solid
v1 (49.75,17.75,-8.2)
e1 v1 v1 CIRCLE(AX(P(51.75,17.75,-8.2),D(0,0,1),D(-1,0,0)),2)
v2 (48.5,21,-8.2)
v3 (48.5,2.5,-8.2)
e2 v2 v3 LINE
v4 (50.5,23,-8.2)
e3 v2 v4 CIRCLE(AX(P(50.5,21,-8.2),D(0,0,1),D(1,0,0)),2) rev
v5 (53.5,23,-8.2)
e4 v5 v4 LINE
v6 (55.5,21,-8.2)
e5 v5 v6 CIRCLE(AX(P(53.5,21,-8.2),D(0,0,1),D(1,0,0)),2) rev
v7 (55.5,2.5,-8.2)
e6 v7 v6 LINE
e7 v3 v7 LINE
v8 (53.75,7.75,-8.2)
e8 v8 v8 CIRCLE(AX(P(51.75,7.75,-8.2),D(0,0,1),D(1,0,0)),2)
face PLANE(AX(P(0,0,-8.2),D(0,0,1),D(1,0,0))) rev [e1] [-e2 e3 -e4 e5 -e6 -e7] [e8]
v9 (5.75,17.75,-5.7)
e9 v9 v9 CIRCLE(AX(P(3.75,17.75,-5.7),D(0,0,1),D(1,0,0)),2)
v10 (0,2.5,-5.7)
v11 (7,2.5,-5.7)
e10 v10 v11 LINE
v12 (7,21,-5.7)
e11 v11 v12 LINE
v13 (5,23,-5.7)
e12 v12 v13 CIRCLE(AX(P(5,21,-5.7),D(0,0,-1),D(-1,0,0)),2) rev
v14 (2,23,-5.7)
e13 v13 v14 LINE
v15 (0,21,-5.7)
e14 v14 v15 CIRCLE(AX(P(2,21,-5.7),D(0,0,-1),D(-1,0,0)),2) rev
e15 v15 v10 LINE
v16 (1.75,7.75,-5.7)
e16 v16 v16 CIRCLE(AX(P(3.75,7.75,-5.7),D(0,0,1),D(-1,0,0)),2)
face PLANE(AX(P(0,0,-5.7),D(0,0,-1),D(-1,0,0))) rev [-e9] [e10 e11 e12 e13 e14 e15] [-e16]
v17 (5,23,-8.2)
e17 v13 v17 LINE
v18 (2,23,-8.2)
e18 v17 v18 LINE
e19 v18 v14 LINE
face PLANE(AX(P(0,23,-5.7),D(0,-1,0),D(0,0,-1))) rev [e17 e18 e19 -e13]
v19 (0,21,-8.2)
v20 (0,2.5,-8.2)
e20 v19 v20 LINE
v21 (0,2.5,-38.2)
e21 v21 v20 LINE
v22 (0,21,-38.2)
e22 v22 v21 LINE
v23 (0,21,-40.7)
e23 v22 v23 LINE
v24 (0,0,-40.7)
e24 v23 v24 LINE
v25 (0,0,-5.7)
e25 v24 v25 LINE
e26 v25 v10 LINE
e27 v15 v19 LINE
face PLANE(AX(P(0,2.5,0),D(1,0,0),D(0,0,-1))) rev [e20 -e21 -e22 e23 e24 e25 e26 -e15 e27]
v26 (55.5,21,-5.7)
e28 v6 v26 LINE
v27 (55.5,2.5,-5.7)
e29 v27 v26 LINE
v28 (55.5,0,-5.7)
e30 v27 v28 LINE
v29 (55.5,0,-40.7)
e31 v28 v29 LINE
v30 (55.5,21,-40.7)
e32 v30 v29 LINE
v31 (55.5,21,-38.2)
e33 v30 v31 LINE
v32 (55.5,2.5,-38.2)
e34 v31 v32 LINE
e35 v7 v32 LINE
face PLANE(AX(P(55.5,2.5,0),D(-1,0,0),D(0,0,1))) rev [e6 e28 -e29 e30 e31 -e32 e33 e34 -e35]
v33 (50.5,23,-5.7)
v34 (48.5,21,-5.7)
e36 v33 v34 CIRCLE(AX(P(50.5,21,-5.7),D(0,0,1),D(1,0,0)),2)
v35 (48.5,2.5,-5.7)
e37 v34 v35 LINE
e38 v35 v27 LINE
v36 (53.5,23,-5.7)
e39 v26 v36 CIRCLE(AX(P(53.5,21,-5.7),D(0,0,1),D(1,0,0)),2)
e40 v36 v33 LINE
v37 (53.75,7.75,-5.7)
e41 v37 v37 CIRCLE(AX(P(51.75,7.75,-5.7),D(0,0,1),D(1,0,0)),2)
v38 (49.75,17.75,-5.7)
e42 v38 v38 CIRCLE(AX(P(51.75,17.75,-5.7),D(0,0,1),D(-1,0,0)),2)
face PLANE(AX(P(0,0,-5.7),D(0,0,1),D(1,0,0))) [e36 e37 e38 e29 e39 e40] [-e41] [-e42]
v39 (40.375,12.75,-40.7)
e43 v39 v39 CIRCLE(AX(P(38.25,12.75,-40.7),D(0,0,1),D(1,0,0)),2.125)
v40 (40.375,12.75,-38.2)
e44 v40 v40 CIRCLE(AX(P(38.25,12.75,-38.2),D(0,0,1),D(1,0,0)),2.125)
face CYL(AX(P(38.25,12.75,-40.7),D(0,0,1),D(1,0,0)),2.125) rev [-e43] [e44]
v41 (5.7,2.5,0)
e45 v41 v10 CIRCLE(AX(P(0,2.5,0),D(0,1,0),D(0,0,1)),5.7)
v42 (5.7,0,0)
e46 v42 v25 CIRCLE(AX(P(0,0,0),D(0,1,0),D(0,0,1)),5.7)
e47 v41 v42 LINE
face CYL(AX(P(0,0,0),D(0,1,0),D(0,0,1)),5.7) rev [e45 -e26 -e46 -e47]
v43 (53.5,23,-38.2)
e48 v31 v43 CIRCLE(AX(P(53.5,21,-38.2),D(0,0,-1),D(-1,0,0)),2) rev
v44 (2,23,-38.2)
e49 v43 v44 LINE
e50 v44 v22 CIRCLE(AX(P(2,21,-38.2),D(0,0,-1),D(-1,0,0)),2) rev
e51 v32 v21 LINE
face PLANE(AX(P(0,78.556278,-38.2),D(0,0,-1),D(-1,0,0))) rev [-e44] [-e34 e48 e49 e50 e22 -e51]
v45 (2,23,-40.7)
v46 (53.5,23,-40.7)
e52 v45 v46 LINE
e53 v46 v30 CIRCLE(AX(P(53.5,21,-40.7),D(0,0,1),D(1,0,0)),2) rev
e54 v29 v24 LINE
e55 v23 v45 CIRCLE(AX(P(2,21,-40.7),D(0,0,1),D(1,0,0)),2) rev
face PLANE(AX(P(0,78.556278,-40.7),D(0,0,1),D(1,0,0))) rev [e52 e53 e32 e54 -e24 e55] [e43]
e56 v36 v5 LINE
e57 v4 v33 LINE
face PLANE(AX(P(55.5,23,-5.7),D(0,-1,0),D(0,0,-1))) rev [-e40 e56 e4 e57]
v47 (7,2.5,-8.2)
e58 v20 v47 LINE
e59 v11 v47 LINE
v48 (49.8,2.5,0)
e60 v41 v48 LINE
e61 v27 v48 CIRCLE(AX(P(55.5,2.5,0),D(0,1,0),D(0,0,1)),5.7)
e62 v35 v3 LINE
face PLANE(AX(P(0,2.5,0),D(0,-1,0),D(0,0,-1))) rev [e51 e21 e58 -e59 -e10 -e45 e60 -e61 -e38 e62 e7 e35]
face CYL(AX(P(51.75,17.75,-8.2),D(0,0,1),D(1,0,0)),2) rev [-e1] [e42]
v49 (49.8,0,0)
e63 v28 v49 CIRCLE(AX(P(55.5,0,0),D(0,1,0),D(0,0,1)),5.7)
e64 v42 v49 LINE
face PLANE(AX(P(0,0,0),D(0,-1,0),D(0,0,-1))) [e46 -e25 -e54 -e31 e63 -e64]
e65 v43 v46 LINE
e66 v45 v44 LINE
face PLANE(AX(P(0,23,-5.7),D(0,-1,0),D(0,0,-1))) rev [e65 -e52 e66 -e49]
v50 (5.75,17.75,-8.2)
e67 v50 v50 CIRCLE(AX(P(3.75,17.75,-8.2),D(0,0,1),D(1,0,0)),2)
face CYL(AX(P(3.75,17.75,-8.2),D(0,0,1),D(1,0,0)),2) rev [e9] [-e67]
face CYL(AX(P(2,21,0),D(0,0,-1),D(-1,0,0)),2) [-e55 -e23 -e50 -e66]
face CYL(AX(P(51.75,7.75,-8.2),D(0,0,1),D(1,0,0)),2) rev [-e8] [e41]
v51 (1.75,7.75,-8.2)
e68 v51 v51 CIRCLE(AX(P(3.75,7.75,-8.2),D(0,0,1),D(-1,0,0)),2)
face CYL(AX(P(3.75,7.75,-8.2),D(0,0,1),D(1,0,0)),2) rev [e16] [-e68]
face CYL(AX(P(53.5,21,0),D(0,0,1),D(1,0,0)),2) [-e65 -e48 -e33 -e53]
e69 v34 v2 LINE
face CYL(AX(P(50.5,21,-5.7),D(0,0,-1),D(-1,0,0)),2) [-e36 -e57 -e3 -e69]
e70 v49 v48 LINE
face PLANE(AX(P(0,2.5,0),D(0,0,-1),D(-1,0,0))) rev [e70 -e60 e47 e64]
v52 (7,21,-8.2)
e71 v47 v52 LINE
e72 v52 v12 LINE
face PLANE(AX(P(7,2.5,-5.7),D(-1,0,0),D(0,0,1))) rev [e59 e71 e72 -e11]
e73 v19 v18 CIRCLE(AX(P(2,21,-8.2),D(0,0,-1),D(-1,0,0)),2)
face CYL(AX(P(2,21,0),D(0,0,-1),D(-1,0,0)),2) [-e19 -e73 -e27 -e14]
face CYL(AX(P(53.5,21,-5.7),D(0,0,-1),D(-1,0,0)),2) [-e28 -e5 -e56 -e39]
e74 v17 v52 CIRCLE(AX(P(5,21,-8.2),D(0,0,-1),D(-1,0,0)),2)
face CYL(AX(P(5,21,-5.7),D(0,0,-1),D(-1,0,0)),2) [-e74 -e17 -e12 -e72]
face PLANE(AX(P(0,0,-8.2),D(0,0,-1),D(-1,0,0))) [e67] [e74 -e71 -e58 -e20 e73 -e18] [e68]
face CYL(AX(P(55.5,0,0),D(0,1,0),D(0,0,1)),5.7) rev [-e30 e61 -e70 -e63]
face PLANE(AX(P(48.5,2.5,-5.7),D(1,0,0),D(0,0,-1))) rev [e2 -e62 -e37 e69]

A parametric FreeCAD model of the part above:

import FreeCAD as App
import Part
import Sketcher
from FreeCAD import Vector
Q = App.Units.Quantity


def edges_at(feature, points):
    """Names of the edges that pass closest to the given points."""
    edges = feature.Shape.Edges
    near = lambda p: min(range(len(edges)), key=lambda i: edges[i].distToShape(Part.Vertex(*p))[0])
    return sorted({f"Edge{near(p) + 1}" for p in points})

doc = App.newDocument("Part")
body = doc.addObject("PartDesign::Body", "Body")

# Sketch on XZ plane
sketch1 = doc.addObject("Sketcher::SketchObject", "Sketch")
body.addObject(sketch1)
sketch1.AttachmentSupport = (doc.XZ_Plane, [""])
sketch1.MapMode = "FlatFace"
sketch1.addGeometry(Part.LineSegment(Vector(0, -38, 0), Vector(0, 0, 0)), False)
sketch1.addGeometry(Part.LineSegment(Vector(0, 0, 0), Vector(56, 0, 0)), False)
sketch1.addGeometry(Part.LineSegment(Vector(56, 0, 0), Vector(56, -38, 0)), False)
sketch1.addGeometry(Part.LineSegment(Vector(56, -38, 0), Vector(0, -38, 0)), False)
sketch1.addConstraint(Sketcher.Constraint("Coincident", 0, 2, 1, 1))
sketch1.addConstraint(Sketcher.Constraint("Coincident", 1, 2, 2, 1))
sketch1.addConstraint(Sketcher.Constraint("Coincident", 2, 2, 3, 1))
sketch1.addConstraint(Sketcher.Constraint("Coincident", 3, 2, 0, 1))
sketch1.addConstraint(Sketcher.Constraint("Vertical", 0))
sketch1.addConstraint(Sketcher.Constraint("Horizontal", 1))
sketch1.addConstraint(Sketcher.Constraint("Vertical", 2))
sketch1.addConstraint(Sketcher.Constraint("Horizontal", 3))
sketch1.addConstraint(Sketcher.Constraint("Coincident", 0, 2, -1, 1))
sketch1.addConstraint(Sketcher.Constraint("DistanceX", 1, 1, 1, 2, Q("55.5 mm")))
sketch1.addConstraint(Sketcher.Constraint("DistanceY", 0, 1, 0, 2, Q("38.2 mm")))
pad1 = doc.addObject("PartDesign::Pad", "Pad")
body.addObject(pad1)
pad1.Profile = sketch1
pad1.Length = 2.5
pad1.Reversed = True

# Sketch on XY plane
sketch2 = doc.addObject("Sketcher::SketchObject", "Sketch001")
body.addObject(sketch2)
sketch2.AttachmentSupport = (doc.XY_Plane, [""])
sketch2.MapMode = "FlatFace"
sketch2.AttachmentOffset = App.Placement(Vector(0, 0, -8.2), App.Rotation())
sketch2.addGeometry(Part.LineSegment(Vector(0, 23, 0), Vector(0, 2, 0)), False)
sketch2.addGeometry(Part.LineSegment(Vector(0, 2, 0), Vector(7, 2, 0)), False)
sketch2.addGeometry(Part.LineSegment(Vector(7, 2, 0), Vector(7, 23, 0)), False)
sketch2.addGeometry(Part.LineSegment(Vector(7, 23, 0), Vector(0, 23, 0)), False)
sketch2.addGeometry(Part.LineSegment(Vector(48, 23, 0), Vector(48, 2, 0)), False)
sketch2.addGeometry(Part.LineSegment(Vector(48, 2, 0), Vector(56, 2, 0)), False)
sketch2.addGeometry(Part.LineSegment(Vector(56, 2, 0), Vector(56, 23, 0)), False)
sketch2.addGeometry(Part.LineSegment(Vector(56, 23, 0), Vector(48, 23, 0)), False)
sketch2.addConstraint(Sketcher.Constraint("Coincident", 0, 2, 1, 1))
sketch2.addConstraint(Sketcher.Constraint("Coincident", 1, 2, 2, 1))
sketch2.addConstraint(Sketcher.Constraint("Coincident", 2, 2, 3, 1))
sketch2.addConstraint(Sketcher.Constraint("Coincident", 3, 2, 0, 1))
sketch2.addConstraint(Sketcher.Constraint("Coincident", 4, 2, 5, 1))
sketch2.addConstraint(Sketcher.Constraint("Coincident", 5, 2, 6, 1))
sketch2.addConstraint(Sketcher.Constraint("Coincident", 6, 2, 7, 1))
sketch2.addConstraint(Sketcher.Constraint("Coincident", 7, 2, 4, 1))
sketch2.addConstraint(Sketcher.Constraint("Vertical", 0))
sketch2.addConstraint(Sketcher.Constraint("Horizontal", 1))
sketch2.addConstraint(Sketcher.Constraint("Vertical", 2))
sketch2.addConstraint(Sketcher.Constraint("Horizontal", 3))
sketch2.addConstraint(Sketcher.Constraint("Vertical", 4))
sketch2.addConstraint(Sketcher.Constraint("Horizontal", 5))
sketch2.addConstraint(Sketcher.Constraint("Vertical", 6))
sketch2.addConstraint(Sketcher.Constraint("Horizontal", 7))
sketch2.addConstraint(Sketcher.Constraint("PointOnObject", 0, 2, -2))
sketch2.addConstraint(Sketcher.Constraint("Horizontal", 1, 2, 4, 2))
sketch2.addConstraint(Sketcher.Constraint("Horizontal", 3, 2, 6, 2))
sketch2.addConstraint(Sketcher.Constraint("Equal", 3, 5))
sketch2.addConstraint(Sketcher.Constraint("DistanceX", 1, 1, 1, 2, Q("7 mm")))
sketch2.addConstraint(Sketcher.Constraint("DistanceY", 0, 2, 0, 1, Q("20.5 mm")))
sketch2.addConstraint(Sketcher.Constraint("DistanceY", -1, 1, 2, 2, Q("23 mm")))
sketch2.addConstraint(Sketcher.Constraint("DistanceX", -1, 1, 4, 2, Q("48.5 mm")))
pad2 = doc.addObject("PartDesign::Pad", "Pad001")
body.addObject(pad2)
pad2.Profile = sketch2
pad2.Length = 2.5

# Sketch on XY plane
sketch3 = doc.addObject("Sketcher::SketchObject", "Sketch002")
body.addObject(sketch3)
sketch3.AttachmentSupport = (doc.XY_Plane, [""])
sketch3.MapMode = "FlatFace"
sketch3.AttachmentOffset = App.Placement(Vector(0, 0, -5.7), App.Rotation())
sketch3.addGeometry(Part.Circle(Vector(3.8, 17.8, 0), Vector(0, 0, 1), 2), False)
sketch3.addGeometry(Part.Circle(Vector(3.8, 7.8, 0), Vector(0, 0, 1), 2), False)
sketch3.addGeometry(Part.Circle(Vector(51.8, 7.8, 0), Vector(0, 0, 1), 2), False)
sketch3.addGeometry(Part.Circle(Vector(51.8, 17.8, 0), Vector(0, 0, 1), 2), False)
sketch3.addConstraint(Sketcher.Constraint("Equal", 0, 1))
sketch3.addConstraint(Sketcher.Constraint("Equal", 1, 2))
sketch3.addConstraint(Sketcher.Constraint("Equal", 2, 3))
sketch3.addConstraint(Sketcher.Constraint("Horizontal", 1, 3, 2, 3))
sketch3.addConstraint(Sketcher.Constraint("Horizontal", 0, 3, 3, 3))
sketch3.addConstraint(Sketcher.Constraint("Vertical", 0, 3, 1, 3))
sketch3.addConstraint(Sketcher.Constraint("Vertical", 2, 3, 3, 3))
sketch3.addConstraint(Sketcher.Constraint("Diameter", 0, Q("4 mm")))
sketch3.addConstraint(Sketcher.Constraint("DistanceY", 1, 3, 0, 3, Q("10 mm")))
sketch3.addConstraint(Sketcher.Constraint("DistanceX", 1, 3, 2, 3, Q("48 mm")))
sketch3.addConstraint(Sketcher.Constraint("DistanceX", -1, 1, 0, 3, Q("3.75 mm")))
sketch3.addConstraint(Sketcher.Constraint("DistanceY", -1, 1, 0, 3, Q("17.75 mm")))
pocket1 = doc.addObject("PartDesign::Pocket", "Pocket")
body.addObject(pocket1)
pocket1.Profile = sketch3
pocket1.Length = 2.5

# Sketch on XZ plane
sketch4 = doc.addObject("Sketcher::SketchObject", "Sketch003")
body.addObject(sketch4)
sketch4.AttachmentSupport = (doc.XZ_Plane, [""])
sketch4.MapMode = "FlatFace"
sketch4.addGeometry(Part.LineSegment(Vector(0, -40.7, 0), Vector(0, -38.2, 0)), False)
sketch4.addGeometry(Part.LineSegment(Vector(0, -38.2, 0), Vector(55.5, -38.2, 0)), False)
sketch4.addGeometry(Part.LineSegment(Vector(55.5, -38.2, 0), Vector(55.5, -40.7, 0)), False)
sketch4.addGeometry(Part.LineSegment(Vector(55.5, -40.7, 0), Vector(0, -40.7, 0)), False)
sketch4.addConstraint(Sketcher.Constraint("Coincident", 0, 2, 1, 1))
sketch4.addConstraint(Sketcher.Constraint("Coincident", 1, 2, 2, 1))
sketch4.addConstraint(Sketcher.Constraint("Coincident", 2, 2, 3, 1))
sketch4.addConstraint(Sketcher.Constraint("Coincident", 3, 2, 0, 1))
sketch4.addConstraint(Sketcher.Constraint("Vertical", 0))
sketch4.addConstraint(Sketcher.Constraint("Horizontal", 1))
sketch4.addConstraint(Sketcher.Constraint("Vertical", 2))
sketch4.addConstraint(Sketcher.Constraint("Horizontal", 3))
sketch4.addConstraint(Sketcher.Constraint("PointOnObject", 0, 2, -2))
sketch4.addConstraint(Sketcher.Constraint("DistanceX", 1, 1, 1, 2, Q("55.5 mm")))
sketch4.addConstraint(Sketcher.Constraint("DistanceY", 0, 1, 0, 2, Q("2.5 mm")))
sketch4.addConstraint(Sketcher.Constraint("DistanceY", 0, 2, -1, 1, Q("38.2 mm")))
pad3 = doc.addObject("PartDesign::Pad", "Pad002")
body.addObject(pad3)
pad3.Profile = sketch4
pad3.Length = 23
pad3.Reversed = True

# Sketch on XY plane
sketch5 = doc.addObject("Sketcher::SketchObject", "Sketch004")
body.addObject(sketch5)
sketch5.AttachmentSupport = (doc.XY_Plane, [""])
sketch5.MapMode = "FlatFace"
sketch5.AttachmentOffset = App.Placement(Vector(0, 0, -38.2), App.Rotation())
sketch5.addGeometry(Part.Circle(Vector(38.2, 12.8, 0), Vector(0, 0, 1), 2.1), False)
sketch5.addConstraint(Sketcher.Constraint("Diameter", 0, Q("4.25 mm")))
sketch5.addConstraint(Sketcher.Constraint("DistanceX", -1, 1, 0, 3, Q("38.25 mm")))
sketch5.addConstraint(Sketcher.Constraint("DistanceY", -1, 1, 0, 3, Q("12.75 mm")))
pocket2 = doc.addObject("PartDesign::Pocket", "Pocket001")
body.addObject(pocket2)
pocket2.Profile = sketch5
pocket2.Length = 2.5

# Sketch on XZ plane
sketch6 = doc.addObject("Sketcher::SketchObject", "Sketch005")
body.addObject(sketch6)
sketch6.AttachmentSupport = (doc.XZ_Plane, [""])
sketch6.MapMode = "FlatFace"
sketch6.AttachmentOffset = App.Placement(Vector(0, 0, -2.5), App.Rotation())
sketch6.addGeometry(Part.Circle(Vector(0, 0, 0), Vector(0, 0, 1), 6), False)
sketch6.addGeometry(Part.Circle(Vector(56, 0, 0), Vector(0, 0, 1), 6), False)
sketch6.addConstraint(Sketcher.Constraint("Coincident", 0, 3, -1, 1))
sketch6.addConstraint(Sketcher.Constraint("Equal", 0, 1))
sketch6.addConstraint(Sketcher.Constraint("PointOnObject", 1, 3, -1))
sketch6.addConstraint(Sketcher.Constraint("Diameter", 0, Q("11.4 mm")))
sketch6.addConstraint(Sketcher.Constraint("DistanceX", -1, 1, 1, 3, Q("55.5 mm")))
pocket3 = doc.addObject("PartDesign::Pocket", "Pocket002")
body.addObject(pocket3)
pocket3.Profile = sketch6
pocket3.Length = 2.5
pocket3.Reversed = True
doc.recompute()

fillet = doc.addObject("PartDesign::Fillet", "Fillet")
body.addObject(fillet)
fillet.Base = (pocket3, edges_at(pocket3, [
    (0, 23, -6.95),
    (7, 23, -6.95),
    (55.5, 23, -6.95),
    (48.5, 23, -6.95),
    (55.5, 23, -39.45),
    (0, 23, -39.45),
]))
fillet.Radius = 2

# Sketch on XY plane
sketch7 = doc.addObject("Sketcher::SketchObject", "Sketch006")
body.addObject(sketch7)
sketch7.AttachmentSupport = (doc.XY_Plane, [""])
sketch7.MapMode = "FlatFace"
sketch7.AttachmentOffset = App.Placement(Vector(0, 0, -40.7), App.Rotation())
sketch7.addGeometry(Part.Circle(Vector(17.2, 12.8, 0), Vector(0, 0, 1), 2.1), False)
sketch7.addConstraint(Sketcher.Constraint("Diameter", 0, Q("4.25 mm")))
sketch7.addConstraint(Sketcher.Constraint("DistanceX", -1, 1, 0, 3, Q("17.25 mm")))
sketch7.addConstraint(Sketcher.Constraint("DistanceY", -1, 1, 0, 3, Q("12.75 mm")))
pocket4 = doc.addObject("PartDesign::Pocket", "Pocket003")
body.addObject(pocket4)
pocket4.Profile = sketch7
pocket4.Length = 10
pocket4.Reversed = True

# Sketch on XY plane
sketch8 = doc.addObject("Sketcher::SketchObject", "Sketch007")
body.addObject(sketch8)
sketch8.AttachmentSupport = (doc.XY_Plane, [""])
sketch8.MapMode = "FlatFace"
sketch8.AttachmentOffset = App.Placement(Vector(0, 0, -40.7), App.Rotation())
sketch8.addGeometry(Part.Circle(Vector(17.2, 12.8, 0), Vector(0, 0, 1), 2.1), False)
sketch8.addConstraint(Sketcher.Constraint("Diameter", 0, Q("4.25 mm")))
sketch8.addConstraint(Sketcher.Constraint("DistanceX", -1, 1, 0, 3, Q("17.25 mm")))
sketch8.addConstraint(Sketcher.Constraint("DistanceY", -1, 1, 0, 3, Q("12.75 mm")))
pad4 = doc.addObject("PartDesign::Pad", "Pad003")
body.addObject(pad4)
pad4.Profile = sketch8
pad4.Length = 2.5

doc.recompute()
